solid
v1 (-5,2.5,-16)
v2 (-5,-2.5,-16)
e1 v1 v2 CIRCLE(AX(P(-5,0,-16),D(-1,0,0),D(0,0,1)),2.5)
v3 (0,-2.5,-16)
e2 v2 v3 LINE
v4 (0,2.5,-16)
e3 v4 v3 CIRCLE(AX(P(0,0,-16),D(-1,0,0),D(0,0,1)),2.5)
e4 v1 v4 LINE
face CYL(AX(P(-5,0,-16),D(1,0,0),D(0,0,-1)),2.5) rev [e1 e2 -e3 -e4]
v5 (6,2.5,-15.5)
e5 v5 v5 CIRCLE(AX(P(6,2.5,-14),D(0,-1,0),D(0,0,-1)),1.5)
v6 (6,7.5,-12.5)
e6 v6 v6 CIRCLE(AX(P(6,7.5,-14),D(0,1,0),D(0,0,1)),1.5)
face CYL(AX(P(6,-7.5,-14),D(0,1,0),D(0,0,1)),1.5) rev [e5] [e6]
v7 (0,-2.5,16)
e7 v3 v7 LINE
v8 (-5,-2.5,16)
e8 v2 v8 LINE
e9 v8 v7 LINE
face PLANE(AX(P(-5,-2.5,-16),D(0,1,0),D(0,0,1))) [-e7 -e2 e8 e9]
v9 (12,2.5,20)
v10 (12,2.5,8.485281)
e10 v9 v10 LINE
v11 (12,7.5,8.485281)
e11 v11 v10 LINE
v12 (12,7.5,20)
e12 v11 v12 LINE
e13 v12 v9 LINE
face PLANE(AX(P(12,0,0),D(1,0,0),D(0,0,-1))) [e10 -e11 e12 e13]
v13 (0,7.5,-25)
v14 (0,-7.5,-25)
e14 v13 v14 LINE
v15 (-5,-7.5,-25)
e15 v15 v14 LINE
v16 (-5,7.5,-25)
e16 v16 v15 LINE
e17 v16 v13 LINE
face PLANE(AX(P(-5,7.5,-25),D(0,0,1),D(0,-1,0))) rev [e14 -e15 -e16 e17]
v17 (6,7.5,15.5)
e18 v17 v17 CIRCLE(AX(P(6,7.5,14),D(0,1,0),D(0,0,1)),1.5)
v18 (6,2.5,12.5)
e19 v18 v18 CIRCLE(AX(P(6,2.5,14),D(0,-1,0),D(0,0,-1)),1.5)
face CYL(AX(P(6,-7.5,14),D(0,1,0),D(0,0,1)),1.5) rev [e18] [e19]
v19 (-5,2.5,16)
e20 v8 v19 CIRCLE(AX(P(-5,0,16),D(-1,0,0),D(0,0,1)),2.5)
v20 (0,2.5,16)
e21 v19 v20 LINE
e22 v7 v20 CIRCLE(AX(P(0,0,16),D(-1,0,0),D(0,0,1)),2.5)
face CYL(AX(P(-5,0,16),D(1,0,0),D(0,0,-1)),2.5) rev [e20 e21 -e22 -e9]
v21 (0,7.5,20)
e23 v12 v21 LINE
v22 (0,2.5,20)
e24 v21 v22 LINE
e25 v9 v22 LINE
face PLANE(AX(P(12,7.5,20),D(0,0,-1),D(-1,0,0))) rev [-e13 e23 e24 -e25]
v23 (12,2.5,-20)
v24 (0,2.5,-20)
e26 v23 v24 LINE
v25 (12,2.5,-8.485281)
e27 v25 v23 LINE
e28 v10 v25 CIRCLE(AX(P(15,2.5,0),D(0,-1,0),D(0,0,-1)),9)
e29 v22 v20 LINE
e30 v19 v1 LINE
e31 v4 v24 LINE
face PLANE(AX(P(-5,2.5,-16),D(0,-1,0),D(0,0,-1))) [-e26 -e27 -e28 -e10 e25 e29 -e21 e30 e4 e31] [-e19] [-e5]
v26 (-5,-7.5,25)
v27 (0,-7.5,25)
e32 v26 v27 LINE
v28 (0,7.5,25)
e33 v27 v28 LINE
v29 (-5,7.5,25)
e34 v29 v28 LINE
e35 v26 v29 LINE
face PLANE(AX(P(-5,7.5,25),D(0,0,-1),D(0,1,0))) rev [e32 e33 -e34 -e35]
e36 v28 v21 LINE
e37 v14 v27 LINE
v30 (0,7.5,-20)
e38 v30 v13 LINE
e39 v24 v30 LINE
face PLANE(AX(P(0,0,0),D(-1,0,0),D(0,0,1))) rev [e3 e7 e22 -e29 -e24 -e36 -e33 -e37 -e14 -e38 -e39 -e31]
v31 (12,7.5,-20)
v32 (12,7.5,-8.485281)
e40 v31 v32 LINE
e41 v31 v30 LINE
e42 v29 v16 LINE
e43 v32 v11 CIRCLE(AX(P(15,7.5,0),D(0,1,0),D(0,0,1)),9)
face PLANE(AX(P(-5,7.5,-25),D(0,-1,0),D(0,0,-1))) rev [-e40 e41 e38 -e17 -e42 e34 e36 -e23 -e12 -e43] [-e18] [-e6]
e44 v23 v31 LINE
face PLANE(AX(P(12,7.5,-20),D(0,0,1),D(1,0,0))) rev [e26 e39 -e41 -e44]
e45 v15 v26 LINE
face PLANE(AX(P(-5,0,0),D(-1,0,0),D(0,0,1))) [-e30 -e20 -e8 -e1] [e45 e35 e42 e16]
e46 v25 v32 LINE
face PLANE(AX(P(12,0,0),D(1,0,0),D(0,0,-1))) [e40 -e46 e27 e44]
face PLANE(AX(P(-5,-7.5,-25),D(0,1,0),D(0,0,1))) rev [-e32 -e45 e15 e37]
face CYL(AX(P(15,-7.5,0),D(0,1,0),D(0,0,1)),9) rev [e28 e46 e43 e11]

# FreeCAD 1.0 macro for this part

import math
import FreeCAD as App
import Part
import Sketcher

doc = App.newDocument("Part")
body = doc.addObject("PartDesign::Body", "Body")

# Sketch on YZ plane
sketch1 = doc.addObject("Sketcher::SketchObject", "Sketch")
body.addObject(sketch1)
sketch1.AttachmentSupport = (doc.YZ_Plane, [""])
sketch1.MapMode = "FlatFace"
sketch1.addGeometry([
    Part.LineSegment(App.Vector(7.5, -25, 0), App.Vector(-7.5, -25, 0)),  # 0
    Part.LineSegment(App.Vector(-7.5, -25, 0), App.Vector(-7.5, 25, 0)),  # 1
    Part.LineSegment(App.Vector(-7.5, 25, 0), App.Vector(7.5, 25, 0)),  # 2
    Part.LineSegment(App.Vector(7.5, 25, 0), App.Vector(7.5, -25, 0)),  # 3
    Part.ArcOfCircle(Part.Circle(App.Vector(0, -16, 0), App.Vector(0, 0, 1), 2.5), math.radians(180), math.radians(360)),  # 4
    Part.LineSegment(App.Vector(2.5, -16, 0), App.Vector(2.5, 16, 0)),  # 5
    Part.ArcOfCircle(Part.Circle(App.Vector(0, 16, 0), App.Vector(0, 0, 1), 2.5), math.radians(0), math.radians(180)),  # 6
    Part.LineSegment(App.Vector(-2.5, 16, 0), App.Vector(-2.5, -16, 0)),  # 7
], False)
sketch1.addConstraint([
    Sketcher.Constraint("Coincident", 0, 2, 1, 1),
    Sketcher.Constraint("Coincident", 1, 2, 2, 1),
    Sketcher.Constraint("Coincident", 2, 2, 3, 1),
    Sketcher.Constraint("Coincident", 3, 2, 0, 1),
    Sketcher.Constraint("Tangent", 4, 2, 5, 1),
    Sketcher.Constraint("Tangent", 5, 2, 6, 1),
    Sketcher.Constraint("Tangent", 6, 2, 7, 1),
    Sketcher.Constraint("Tangent", 7, 2, 4, 1),
    Sketcher.Constraint("Horizontal", 0),
    Sketcher.Constraint("Vertical", 1),
    Sketcher.Constraint("Horizontal", 2),
    Sketcher.Constraint("Vertical", 3),
    Sketcher.Constraint("Vertical", 5),
    Sketcher.Constraint("Vertical", 7),
    Sketcher.Constraint("Symmetric", 4, 3, 6, 3, -1, 1),
    Sketcher.Constraint("Symmetric", 0, 2, 2, 2, -1, 1),
    Sketcher.Constraint("Radius", 4, 2.5),
    Sketcher.Constraint("DistanceX", 0, 2, 0, 1, 15.0),
    Sketcher.Constraint("DistanceY", 1, 1, 1, 2, 50.0),
    Sketcher.Constraint("DistanceY", 5, 1, 5, 2, 32.0),
])
pad1 = doc.addObject("PartDesign::Pad", "Pad")
body.addObject(pad1)
pad1.Profile = sketch1
pad1.Length = 5
pad1.Reversed = True

# Sketch on YZ plane
sketch2 = doc.addObject("Sketcher::SketchObject", "Sketch001")
body.addObject(sketch2)
sketch2.AttachmentSupport = (doc.YZ_Plane, [""])
sketch2.MapMode = "FlatFace"
sketch2.addGeometry([
    Part.LineSegment(App.Vector(7.5, 20, 0), App.Vector(2.5, 20, 0)),
    Part.LineSegment(App.Vector(2.5, 20, 0), App.Vector(2.5, -20, 0)),
    Part.LineSegment(App.Vector(2.5, -20, 0), App.Vector(7.5, -20, 0)),
    Part.LineSegment(App.Vector(7.5, -20, 0), App.Vector(7.5, 20, 0)),
], False)
sketch2.addConstraint([
    Sketcher.Constraint("Coincident", 0, 2, 1, 1),
    Sketcher.Constraint("Coincident", 1, 2, 2, 1),
    Sketcher.Constraint("Coincident", 2, 2, 3, 1),
    Sketcher.Constraint("Coincident", 3, 2, 0, 1),
    Sketcher.Constraint("Horizontal", 0),
    Sketcher.Constraint("Vertical", 1),
    Sketcher.Constraint("Horizontal", 2),
    Sketcher.Constraint("Vertical", 3),
    Sketcher.Constraint("DistanceX", 0, 2, 0, 1, 5.0),
    Sketcher.Constraint("DistanceY", 1, 2, 1, 1, 40.0),
    Sketcher.Constraint("DistanceY", -1, 1, 0, 2, 20.0),
    Sketcher.Constraint("DistanceX", -1, 1, 0, 2, 2.5),
])
pad2 = doc.addObject("PartDesign::Pad", "Pad001")
body.addObject(pad2)
pad2.Profile = sketch2
pad2.Length = 12

# Sketch on XZ plane
sketch3 = doc.addObject("Sketcher::SketchObject", "Sketch002")
body.addObject(sketch3)
sketch3.AttachmentSupport = (doc.XZ_Plane, [""])
sketch3.MapMode = "FlatFace"
sketch3.AttachmentOffset = App.Placement(App.Vector(0, 0, -7.5), App.Rotation())
sketch3.addGeometry([
    Part.Circle(App.Vector(15, 0, 0), App.Vector(0, 0, 1), 9),
    Part.Circle(App.Vector(6, -14, 0), App.Vector(0, 0, 1), 1.5),
    Part.Circle(App.Vector(6, 14, 0), App.Vector(0, 0, 1), 1.5),
], False)
sketch3.addConstraint([
    Sketcher.Constraint("Equal", 1, 2),
    Sketcher.Constraint("Symmetric", 1, 3, 2, 3, -1),
    Sketcher.Constraint("PointOnObject", 0, 3, -1),
    Sketcher.Constraint("Diameter", 0, 18.0),
    Sketcher.Constraint("Diameter", 1, 3.0),
    Sketcher.Constraint("DistanceX", -1, 1, 0, 3, 15.0),
    Sketcher.Constraint("DistanceX", -1, 1, 1, 3, 6.0),
    Sketcher.Constraint("DistanceY", 1, 3, -1, 1, 14.0),
])
pocket1 = doc.addObject("PartDesign::Pocket", "Pocket")
body.addObject(pocket1)
pocket1.Profile = sketch3
pocket1.Type = "ThroughAll"
pocket1.Reversed = True

doc.recompute()
